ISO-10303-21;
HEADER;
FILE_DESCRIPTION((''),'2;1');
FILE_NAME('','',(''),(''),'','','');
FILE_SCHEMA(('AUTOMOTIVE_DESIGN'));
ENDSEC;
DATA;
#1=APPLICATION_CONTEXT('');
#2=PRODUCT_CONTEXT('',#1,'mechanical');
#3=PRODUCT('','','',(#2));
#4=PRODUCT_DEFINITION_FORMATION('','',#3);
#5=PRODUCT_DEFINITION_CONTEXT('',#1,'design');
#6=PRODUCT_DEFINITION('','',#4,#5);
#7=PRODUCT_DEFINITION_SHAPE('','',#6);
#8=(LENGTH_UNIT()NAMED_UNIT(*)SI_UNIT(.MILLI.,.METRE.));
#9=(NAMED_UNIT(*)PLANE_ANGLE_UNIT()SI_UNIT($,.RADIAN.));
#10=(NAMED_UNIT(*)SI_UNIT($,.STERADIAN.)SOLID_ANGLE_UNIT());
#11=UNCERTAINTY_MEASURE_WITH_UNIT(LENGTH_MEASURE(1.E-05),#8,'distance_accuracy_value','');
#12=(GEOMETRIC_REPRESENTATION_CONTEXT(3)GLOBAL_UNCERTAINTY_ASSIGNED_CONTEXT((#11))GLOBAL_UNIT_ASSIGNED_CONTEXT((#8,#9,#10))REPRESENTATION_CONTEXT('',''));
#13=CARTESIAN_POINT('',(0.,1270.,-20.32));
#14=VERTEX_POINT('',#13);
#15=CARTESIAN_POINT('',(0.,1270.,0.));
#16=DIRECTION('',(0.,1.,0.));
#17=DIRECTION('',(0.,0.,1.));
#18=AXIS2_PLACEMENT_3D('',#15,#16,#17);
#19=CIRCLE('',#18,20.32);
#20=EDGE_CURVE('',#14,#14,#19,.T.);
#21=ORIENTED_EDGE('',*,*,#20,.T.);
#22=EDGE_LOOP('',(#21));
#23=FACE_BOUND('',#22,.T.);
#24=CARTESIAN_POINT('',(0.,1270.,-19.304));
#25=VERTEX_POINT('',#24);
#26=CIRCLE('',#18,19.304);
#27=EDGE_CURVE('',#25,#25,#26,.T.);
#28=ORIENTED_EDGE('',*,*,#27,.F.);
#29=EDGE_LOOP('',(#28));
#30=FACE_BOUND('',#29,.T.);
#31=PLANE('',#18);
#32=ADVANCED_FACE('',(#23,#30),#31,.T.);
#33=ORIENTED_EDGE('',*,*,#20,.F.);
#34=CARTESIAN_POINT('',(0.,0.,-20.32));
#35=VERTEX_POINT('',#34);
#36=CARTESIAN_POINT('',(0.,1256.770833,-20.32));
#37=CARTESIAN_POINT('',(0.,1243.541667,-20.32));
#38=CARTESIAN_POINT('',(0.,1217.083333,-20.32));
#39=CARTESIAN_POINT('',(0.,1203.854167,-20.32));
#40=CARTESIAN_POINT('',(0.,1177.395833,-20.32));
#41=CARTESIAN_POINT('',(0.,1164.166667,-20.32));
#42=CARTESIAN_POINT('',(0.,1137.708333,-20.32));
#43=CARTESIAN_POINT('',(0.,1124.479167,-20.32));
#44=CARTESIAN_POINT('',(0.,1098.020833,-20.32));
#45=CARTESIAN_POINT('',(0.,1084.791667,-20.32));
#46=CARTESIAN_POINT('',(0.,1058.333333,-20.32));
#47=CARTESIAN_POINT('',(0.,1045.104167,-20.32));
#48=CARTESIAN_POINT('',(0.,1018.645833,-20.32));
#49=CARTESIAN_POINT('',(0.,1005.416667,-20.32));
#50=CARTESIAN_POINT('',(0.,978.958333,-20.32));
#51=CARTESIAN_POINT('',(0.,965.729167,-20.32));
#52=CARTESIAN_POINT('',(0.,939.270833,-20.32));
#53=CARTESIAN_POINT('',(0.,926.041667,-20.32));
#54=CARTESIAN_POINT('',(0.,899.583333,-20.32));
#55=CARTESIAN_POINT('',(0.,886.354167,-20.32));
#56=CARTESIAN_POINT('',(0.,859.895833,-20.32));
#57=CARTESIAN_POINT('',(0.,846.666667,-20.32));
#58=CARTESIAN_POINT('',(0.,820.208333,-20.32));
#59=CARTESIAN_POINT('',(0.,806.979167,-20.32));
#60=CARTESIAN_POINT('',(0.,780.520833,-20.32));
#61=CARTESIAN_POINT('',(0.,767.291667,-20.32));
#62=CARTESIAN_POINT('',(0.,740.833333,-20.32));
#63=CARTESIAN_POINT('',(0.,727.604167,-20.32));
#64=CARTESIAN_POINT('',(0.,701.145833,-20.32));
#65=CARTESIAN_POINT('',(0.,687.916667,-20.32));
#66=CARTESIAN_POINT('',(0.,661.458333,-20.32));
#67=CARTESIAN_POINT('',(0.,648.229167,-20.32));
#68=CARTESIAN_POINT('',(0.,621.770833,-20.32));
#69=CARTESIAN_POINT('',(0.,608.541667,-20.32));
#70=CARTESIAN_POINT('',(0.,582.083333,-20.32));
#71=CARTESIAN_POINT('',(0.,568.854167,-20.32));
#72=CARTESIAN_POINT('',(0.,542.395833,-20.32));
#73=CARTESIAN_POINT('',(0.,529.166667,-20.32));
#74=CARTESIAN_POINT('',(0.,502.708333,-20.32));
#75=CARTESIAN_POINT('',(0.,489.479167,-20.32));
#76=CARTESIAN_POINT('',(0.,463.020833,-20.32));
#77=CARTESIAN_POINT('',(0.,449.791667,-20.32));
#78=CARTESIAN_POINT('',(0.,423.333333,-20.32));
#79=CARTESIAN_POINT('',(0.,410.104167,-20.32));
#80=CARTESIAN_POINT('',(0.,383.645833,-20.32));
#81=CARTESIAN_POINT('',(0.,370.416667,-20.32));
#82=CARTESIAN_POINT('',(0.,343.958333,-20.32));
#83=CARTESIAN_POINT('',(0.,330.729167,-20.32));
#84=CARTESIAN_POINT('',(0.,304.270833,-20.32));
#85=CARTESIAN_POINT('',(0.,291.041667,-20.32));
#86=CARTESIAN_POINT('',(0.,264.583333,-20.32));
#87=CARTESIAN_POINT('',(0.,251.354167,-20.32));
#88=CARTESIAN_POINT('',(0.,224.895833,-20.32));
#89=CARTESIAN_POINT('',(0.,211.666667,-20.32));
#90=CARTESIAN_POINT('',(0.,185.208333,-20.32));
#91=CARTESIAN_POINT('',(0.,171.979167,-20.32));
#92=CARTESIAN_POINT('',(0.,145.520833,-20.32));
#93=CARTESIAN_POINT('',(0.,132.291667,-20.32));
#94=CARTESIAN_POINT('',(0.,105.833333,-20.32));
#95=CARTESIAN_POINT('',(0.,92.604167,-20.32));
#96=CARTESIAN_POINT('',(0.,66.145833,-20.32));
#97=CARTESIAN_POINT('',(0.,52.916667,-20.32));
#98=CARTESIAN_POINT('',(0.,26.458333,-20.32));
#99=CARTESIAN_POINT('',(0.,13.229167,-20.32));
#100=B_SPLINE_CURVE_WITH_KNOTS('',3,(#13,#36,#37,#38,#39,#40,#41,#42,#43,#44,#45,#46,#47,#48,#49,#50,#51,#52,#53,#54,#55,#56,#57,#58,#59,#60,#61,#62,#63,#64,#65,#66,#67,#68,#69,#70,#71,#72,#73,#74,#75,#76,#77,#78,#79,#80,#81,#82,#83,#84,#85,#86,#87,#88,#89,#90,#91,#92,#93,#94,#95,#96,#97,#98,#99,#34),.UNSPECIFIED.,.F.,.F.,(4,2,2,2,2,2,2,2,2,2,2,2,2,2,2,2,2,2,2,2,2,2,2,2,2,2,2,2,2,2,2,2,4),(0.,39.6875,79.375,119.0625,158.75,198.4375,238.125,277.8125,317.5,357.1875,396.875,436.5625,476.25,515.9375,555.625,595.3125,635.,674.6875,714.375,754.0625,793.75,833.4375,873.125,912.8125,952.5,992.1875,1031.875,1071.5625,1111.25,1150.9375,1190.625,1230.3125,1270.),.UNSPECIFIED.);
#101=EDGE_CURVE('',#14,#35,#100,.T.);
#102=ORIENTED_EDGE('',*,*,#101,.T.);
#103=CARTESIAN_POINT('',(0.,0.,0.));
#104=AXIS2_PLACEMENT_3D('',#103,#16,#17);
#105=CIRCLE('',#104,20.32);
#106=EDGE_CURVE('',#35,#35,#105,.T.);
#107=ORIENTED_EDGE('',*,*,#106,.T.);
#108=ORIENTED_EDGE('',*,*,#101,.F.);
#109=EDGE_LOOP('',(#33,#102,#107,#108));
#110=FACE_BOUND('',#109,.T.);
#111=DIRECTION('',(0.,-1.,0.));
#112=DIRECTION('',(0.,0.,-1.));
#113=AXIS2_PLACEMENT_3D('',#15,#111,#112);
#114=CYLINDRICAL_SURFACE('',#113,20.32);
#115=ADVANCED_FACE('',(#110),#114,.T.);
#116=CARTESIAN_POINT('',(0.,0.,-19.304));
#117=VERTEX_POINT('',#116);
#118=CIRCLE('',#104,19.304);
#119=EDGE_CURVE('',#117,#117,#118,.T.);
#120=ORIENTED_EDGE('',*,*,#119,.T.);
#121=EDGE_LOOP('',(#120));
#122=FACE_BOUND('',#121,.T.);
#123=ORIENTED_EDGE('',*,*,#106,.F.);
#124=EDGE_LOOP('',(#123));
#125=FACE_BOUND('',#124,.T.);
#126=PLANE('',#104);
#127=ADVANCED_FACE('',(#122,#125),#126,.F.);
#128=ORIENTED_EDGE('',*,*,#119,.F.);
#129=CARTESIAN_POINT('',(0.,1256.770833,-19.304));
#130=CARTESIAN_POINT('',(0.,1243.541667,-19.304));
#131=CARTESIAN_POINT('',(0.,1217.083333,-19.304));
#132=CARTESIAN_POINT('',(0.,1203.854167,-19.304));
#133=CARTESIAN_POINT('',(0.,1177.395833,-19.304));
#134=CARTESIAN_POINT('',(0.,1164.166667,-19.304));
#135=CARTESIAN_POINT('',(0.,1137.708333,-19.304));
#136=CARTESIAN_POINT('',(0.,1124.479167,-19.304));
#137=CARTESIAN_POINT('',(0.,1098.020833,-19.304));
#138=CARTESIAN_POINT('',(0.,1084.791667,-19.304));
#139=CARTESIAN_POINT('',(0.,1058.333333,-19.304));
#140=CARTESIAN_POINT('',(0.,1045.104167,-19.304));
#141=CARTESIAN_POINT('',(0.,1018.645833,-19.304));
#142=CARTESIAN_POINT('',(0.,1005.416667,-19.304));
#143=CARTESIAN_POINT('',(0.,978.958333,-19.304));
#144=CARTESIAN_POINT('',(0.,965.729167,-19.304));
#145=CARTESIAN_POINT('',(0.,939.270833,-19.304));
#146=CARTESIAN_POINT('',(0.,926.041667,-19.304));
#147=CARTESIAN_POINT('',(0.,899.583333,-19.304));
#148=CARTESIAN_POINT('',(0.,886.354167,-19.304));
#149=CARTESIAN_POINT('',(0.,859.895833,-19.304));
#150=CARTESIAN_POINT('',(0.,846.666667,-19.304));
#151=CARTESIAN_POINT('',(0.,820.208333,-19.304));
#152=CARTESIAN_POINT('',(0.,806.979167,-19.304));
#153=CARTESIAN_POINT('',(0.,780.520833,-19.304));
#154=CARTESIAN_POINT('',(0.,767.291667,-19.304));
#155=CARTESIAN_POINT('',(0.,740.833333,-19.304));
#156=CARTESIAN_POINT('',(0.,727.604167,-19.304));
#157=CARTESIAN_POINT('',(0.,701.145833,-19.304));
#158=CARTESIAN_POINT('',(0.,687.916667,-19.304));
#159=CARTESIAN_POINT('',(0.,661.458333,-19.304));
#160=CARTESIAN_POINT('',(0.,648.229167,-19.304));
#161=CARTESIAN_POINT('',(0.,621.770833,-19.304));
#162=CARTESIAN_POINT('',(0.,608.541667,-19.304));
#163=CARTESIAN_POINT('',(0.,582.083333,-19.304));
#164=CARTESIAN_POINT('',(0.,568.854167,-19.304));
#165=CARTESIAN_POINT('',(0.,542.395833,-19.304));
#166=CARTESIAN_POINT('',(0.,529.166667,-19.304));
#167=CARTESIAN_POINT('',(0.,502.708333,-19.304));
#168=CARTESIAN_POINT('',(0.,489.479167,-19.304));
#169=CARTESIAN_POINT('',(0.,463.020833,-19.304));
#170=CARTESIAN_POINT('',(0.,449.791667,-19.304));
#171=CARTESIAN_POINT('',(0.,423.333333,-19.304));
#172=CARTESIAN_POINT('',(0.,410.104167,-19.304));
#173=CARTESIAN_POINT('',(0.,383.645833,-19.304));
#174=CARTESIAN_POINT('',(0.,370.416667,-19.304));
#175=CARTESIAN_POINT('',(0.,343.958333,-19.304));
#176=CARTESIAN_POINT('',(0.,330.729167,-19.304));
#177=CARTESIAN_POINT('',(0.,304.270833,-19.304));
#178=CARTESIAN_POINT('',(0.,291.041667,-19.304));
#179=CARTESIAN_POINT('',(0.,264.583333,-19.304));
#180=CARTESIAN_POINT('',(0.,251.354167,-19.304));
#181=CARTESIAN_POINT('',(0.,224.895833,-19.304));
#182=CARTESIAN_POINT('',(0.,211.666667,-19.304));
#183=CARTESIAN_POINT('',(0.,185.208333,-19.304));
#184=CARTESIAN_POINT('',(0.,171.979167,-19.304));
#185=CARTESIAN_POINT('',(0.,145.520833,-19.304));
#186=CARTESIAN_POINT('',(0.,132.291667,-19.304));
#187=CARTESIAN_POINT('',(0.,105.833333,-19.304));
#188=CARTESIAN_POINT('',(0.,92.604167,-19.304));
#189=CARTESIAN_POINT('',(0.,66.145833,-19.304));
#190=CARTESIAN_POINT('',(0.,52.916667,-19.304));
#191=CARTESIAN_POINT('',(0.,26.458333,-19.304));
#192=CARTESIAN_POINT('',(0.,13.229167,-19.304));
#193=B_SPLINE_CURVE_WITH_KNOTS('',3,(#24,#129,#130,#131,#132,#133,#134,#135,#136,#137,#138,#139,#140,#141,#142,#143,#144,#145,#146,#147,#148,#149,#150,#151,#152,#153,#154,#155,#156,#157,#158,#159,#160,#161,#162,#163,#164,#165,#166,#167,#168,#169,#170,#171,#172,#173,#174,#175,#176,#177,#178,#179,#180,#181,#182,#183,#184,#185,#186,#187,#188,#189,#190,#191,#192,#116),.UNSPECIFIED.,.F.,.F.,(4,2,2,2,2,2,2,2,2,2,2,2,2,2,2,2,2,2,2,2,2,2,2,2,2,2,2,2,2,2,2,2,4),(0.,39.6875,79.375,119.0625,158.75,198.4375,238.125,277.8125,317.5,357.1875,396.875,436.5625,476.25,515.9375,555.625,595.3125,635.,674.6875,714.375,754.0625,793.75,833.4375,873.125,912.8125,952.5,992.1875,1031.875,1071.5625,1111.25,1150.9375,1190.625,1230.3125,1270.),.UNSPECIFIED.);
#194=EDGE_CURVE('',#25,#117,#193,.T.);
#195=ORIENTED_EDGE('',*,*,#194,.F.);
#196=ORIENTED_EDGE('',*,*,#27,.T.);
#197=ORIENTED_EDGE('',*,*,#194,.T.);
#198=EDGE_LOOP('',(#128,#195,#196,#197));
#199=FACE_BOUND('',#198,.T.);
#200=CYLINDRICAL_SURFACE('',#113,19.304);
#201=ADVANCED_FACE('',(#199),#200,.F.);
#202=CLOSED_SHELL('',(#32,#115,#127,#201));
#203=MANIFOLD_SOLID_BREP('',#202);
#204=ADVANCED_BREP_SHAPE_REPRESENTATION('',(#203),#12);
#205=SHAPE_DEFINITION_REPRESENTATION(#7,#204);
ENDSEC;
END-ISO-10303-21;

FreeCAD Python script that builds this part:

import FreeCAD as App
import Part
import Sketcher
from FreeCAD import Vector
Q = App.Units.Quantity

doc = App.newDocument("Part")
params = doc.addObject("Spreadsheet::Sheet", "Params")
for row, (alias, value) in enumerate([
    ("sketch1_diameter", "1.6 in"),
    ("sketch1_diameter2", "1.52 in"),
    ("pad1_length", "50 in"),
], start=1):
    params.set(f"A{row}", alias)
    params.set(f"B{row}", "=" + value)
    params.setAlias(f"B{row}", alias)

body = doc.addObject("PartDesign::Body", "Body")

# Sketch on XZ plane
sketch1 = body.newObject("Sketcher::SketchObject", "Sketch")
sketch1.AttachmentSupport = (doc.getObject("XZ_Plane"), [""])
sketch1.MapMode = "FlatFace"
sketch1.addGeometry([
    Part.Circle(Vector(0, 0, 0), Vector(0, 0, 1), 20),
    Part.Circle(Vector(0, 0, 0), Vector(0, 0, 1), 19),
], False)
sketch1.addConstraint([
    Sketcher.Constraint("Coincident", 0, 3, -1, 1),
    Sketcher.Constraint("Coincident", 1, 3, -1, 1),
    Sketcher.Constraint("Diameter", 0, Q("1.6 in")),
    Sketcher.Constraint("Diameter", 1, Q("1.52 in")),
])
sketch1.setExpression("Constraints[2]", "Params.sketch1_diameter")
sketch1.setExpression("Constraints[3]", "Params.sketch1_diameter2")
pad1 = body.newObject("PartDesign::Pad", "Pad")
pad1.Profile = sketch1
pad1.setExpression("Length", "Params.pad1_length")
pad1.Reversed = True

doc.recompute()
